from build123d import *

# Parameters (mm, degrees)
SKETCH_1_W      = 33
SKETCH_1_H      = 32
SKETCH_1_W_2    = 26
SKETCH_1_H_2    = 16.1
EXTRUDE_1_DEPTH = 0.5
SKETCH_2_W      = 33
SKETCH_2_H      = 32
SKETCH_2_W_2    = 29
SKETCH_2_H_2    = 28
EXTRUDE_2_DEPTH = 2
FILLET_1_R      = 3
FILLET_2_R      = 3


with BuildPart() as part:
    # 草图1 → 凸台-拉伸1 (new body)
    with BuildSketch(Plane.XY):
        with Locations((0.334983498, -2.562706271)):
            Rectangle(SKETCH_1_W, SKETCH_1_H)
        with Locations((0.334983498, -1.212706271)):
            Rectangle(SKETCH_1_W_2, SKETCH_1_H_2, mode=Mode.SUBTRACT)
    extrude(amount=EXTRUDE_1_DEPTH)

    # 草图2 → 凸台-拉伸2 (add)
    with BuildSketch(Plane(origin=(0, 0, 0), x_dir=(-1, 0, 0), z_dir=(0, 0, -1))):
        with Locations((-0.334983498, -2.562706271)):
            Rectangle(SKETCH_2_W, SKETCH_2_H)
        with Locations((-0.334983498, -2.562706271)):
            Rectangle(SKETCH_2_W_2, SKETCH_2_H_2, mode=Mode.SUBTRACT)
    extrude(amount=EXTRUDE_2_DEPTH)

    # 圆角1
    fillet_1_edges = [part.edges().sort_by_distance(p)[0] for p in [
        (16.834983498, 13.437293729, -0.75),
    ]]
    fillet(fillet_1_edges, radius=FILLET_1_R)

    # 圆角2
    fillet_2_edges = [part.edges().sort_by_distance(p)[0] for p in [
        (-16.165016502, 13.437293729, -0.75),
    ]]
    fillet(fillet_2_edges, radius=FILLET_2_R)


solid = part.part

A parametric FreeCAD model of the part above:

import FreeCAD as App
import Part
import Sketcher


def edges_at(feature, points):
    """Names of the edges that pass closest to the given points."""
    edges = feature.Shape.Edges
    near = lambda p: min(range(len(edges)), key=lambda i: edges[i].distToShape(Part.Vertex(*p))[0])
    return sorted({f"Edge{near(p) + 1}" for p in points})


def add_polygon(sketch, points):
    """Adds a closed chain of lines whose ends are joined by coincident constraints."""
    first, n = sketch.GeometryCount, len(points)
    for a, b in zip(points, points[1:] + points[:1]):
        sketch.addGeometry(Part.LineSegment(App.Vector(*a, 0), App.Vector(*b, 0)), False)
    for i in range(n):
        sketch.addConstraint(Sketcher.Constraint("Coincident", first + i, 2, first + (i + 1) % n, 1))

doc = App.newDocument("Part")
params = doc.addObject("Spreadsheet::Sheet", "Params")
for row, (alias, value) in enumerate([
    ("sketch1_width", "33 mm"),
    ("sketch1_width2", "26 mm"),
    ("sketch1_height", "32 mm"),
    ("sketch1_height2", "16.1 mm"),
    ("pad1_length", "0.5 mm"),
    ("sketch2_width", "33 mm"),
    ("sketch2_width2", "29 mm"),
    ("sketch2_height", "32 mm"),
    ("sketch2_height2", "28 mm"),
    ("pad2_length", "2 mm"),
    ("fillet_radius", "3 mm"),
    ("fillet2_radius", "3 mm"),
], start=1):
    params.set(f"A{row}", alias)
    params.set(f"B{row}", "=" + value)
    params.setAlias(f"B{row}", alias)

body = doc.addObject("PartDesign::Body", "Body")

# Sketch on XY plane
sketch1 = doc.addObject("Sketcher::SketchObject", "Sketch")
body.addObject(sketch1)
sketch1.AttachmentSupport = (doc.XY_Plane, [""])
sketch1.MapMode = "FlatFace"
add_polygon(sketch1, [(-16, 13), (-16, -19), (17, -19), (17, 13)])  # lines 0-3
add_polygon(sketch1, [(13, -9), (-13, -9), (-13, 7), (13, 7)])  # lines 4-7
sketch1.addConstraint([
    Sketcher.Constraint("Vertical", 0),
    Sketcher.Constraint("Horizontal", 1),
    Sketcher.Constraint("Vertical", 2),
    Sketcher.Constraint("Horizontal", 3),
    Sketcher.Constraint("Horizontal", 4),
    Sketcher.Constraint("Vertical", 5),
    Sketcher.Constraint("Horizontal", 6),
    Sketcher.Constraint("Vertical", 7),
    Sketcher.Constraint("DistanceX", 1, 1, 1, 2, 33.0),
    Sketcher.Constraint("DistanceX", 4, 2, 4, 1, 26.0),
    Sketcher.Constraint("DistanceY", 0, 2, 0, 1, 32.0),
    Sketcher.Constraint("DistanceY", 5, 1, 5, 2, 16.1),
    Sketcher.Constraint("DistanceX", 0, 2, 4, 2, 3.5),
    Sketcher.Constraint("DistanceY", 0, 2, 4, 2, 9.3),
    Sketcher.Constraint("DistanceX", 0, 2, -1, 1, 16.165017),
    Sketcher.Constraint("DistanceY", 0, 2, -1, 1, 18.562706),
])
sketch1.setExpression("Constraints[16]", "Params.sketch1_width")
sketch1.setExpression("Constraints[17]", "Params.sketch1_width2")
sketch1.setExpression("Constraints[18]", "Params.sketch1_height")
sketch1.setExpression("Constraints[19]", "Params.sketch1_height2")
pad1 = doc.addObject("PartDesign::Pad", "Pad")
body.addObject(pad1)
pad1.Profile = sketch1
pad1.setExpression("Length", "Params.pad1_length")

# Sketch on XY plane
sketch2 = doc.addObject("Sketcher::SketchObject", "Sketch001")
body.addObject(sketch2)
sketch2.AttachmentSupport = (doc.XY_Plane, [""])
sketch2.MapMode = "FlatFace"
add_polygon(sketch2, [(17, 13), (17, -19), (-16, -19), (-16, 13)])  # lines 0-3
add_polygon(sketch2, [(-14, -17), (15, -17), (15, 11), (-14, 11)])  # lines 4-7
sketch2.addConstraint([
    Sketcher.Constraint("Vertical", 0),
    Sketcher.Constraint("Horizontal", 1),
    Sketcher.Constraint("Vertical", 2),
    Sketcher.Constraint("Horizontal", 3),
    Sketcher.Constraint("Horizontal", 4),
    Sketcher.Constraint("Vertical", 5),
    Sketcher.Constraint("Horizontal", 6),
    Sketcher.Constraint("Vertical", 7),
    Sketcher.Constraint("DistanceX", 1, 2, 1, 1, 33.0),
    Sketcher.Constraint("DistanceX", 4, 1, 4, 2, 29.0),
    Sketcher.Constraint("DistanceY", 0, 2, 0, 1, 32.0),
    Sketcher.Constraint("DistanceY", 5, 1, 5, 2, 28.0),
    Sketcher.Constraint("DistanceX", 4, 2, 0, 2, 2.0),
    Sketcher.Constraint("DistanceY", 0, 2, 4, 2, 2.0),
    Sketcher.Constraint("DistanceX", -1, 1, 0, 2, 16.834983),
    Sketcher.Constraint("DistanceY", 0, 2, -1, 1, 18.562706),
])
sketch2.setExpression("Constraints[16]", "Params.sketch2_width")
sketch2.setExpression("Constraints[17]", "Params.sketch2_width2")
sketch2.setExpression("Constraints[18]", "Params.sketch2_height")
sketch2.setExpression("Constraints[19]", "Params.sketch2_height2")
pad2 = doc.addObject("PartDesign::Pad", "Pad001")
body.addObject(pad2)
pad2.Profile = sketch2
pad2.setExpression("Length", "Params.pad2_length")
pad2.Reversed = True
doc.recompute()

fillet = doc.addObject("PartDesign::Fillet", "Fillet")
body.addObject(fillet)
fillet.Base = (pad2, edges_at(pad2, [(16.835, 13.437, -0.75)]))
fillet.setExpression("Radius", "Params.fillet_radius")
doc.recompute()

fillet2 = doc.addObject("PartDesign::Fillet", "Fillet001")
body.addObject(fillet2)
fillet2.Base = (fillet, edges_at(fillet, [(-16.165, 13.437, -0.75)]))
fillet2.setExpression("Radius", "Params.fillet2_radius")

doc.recompute()
